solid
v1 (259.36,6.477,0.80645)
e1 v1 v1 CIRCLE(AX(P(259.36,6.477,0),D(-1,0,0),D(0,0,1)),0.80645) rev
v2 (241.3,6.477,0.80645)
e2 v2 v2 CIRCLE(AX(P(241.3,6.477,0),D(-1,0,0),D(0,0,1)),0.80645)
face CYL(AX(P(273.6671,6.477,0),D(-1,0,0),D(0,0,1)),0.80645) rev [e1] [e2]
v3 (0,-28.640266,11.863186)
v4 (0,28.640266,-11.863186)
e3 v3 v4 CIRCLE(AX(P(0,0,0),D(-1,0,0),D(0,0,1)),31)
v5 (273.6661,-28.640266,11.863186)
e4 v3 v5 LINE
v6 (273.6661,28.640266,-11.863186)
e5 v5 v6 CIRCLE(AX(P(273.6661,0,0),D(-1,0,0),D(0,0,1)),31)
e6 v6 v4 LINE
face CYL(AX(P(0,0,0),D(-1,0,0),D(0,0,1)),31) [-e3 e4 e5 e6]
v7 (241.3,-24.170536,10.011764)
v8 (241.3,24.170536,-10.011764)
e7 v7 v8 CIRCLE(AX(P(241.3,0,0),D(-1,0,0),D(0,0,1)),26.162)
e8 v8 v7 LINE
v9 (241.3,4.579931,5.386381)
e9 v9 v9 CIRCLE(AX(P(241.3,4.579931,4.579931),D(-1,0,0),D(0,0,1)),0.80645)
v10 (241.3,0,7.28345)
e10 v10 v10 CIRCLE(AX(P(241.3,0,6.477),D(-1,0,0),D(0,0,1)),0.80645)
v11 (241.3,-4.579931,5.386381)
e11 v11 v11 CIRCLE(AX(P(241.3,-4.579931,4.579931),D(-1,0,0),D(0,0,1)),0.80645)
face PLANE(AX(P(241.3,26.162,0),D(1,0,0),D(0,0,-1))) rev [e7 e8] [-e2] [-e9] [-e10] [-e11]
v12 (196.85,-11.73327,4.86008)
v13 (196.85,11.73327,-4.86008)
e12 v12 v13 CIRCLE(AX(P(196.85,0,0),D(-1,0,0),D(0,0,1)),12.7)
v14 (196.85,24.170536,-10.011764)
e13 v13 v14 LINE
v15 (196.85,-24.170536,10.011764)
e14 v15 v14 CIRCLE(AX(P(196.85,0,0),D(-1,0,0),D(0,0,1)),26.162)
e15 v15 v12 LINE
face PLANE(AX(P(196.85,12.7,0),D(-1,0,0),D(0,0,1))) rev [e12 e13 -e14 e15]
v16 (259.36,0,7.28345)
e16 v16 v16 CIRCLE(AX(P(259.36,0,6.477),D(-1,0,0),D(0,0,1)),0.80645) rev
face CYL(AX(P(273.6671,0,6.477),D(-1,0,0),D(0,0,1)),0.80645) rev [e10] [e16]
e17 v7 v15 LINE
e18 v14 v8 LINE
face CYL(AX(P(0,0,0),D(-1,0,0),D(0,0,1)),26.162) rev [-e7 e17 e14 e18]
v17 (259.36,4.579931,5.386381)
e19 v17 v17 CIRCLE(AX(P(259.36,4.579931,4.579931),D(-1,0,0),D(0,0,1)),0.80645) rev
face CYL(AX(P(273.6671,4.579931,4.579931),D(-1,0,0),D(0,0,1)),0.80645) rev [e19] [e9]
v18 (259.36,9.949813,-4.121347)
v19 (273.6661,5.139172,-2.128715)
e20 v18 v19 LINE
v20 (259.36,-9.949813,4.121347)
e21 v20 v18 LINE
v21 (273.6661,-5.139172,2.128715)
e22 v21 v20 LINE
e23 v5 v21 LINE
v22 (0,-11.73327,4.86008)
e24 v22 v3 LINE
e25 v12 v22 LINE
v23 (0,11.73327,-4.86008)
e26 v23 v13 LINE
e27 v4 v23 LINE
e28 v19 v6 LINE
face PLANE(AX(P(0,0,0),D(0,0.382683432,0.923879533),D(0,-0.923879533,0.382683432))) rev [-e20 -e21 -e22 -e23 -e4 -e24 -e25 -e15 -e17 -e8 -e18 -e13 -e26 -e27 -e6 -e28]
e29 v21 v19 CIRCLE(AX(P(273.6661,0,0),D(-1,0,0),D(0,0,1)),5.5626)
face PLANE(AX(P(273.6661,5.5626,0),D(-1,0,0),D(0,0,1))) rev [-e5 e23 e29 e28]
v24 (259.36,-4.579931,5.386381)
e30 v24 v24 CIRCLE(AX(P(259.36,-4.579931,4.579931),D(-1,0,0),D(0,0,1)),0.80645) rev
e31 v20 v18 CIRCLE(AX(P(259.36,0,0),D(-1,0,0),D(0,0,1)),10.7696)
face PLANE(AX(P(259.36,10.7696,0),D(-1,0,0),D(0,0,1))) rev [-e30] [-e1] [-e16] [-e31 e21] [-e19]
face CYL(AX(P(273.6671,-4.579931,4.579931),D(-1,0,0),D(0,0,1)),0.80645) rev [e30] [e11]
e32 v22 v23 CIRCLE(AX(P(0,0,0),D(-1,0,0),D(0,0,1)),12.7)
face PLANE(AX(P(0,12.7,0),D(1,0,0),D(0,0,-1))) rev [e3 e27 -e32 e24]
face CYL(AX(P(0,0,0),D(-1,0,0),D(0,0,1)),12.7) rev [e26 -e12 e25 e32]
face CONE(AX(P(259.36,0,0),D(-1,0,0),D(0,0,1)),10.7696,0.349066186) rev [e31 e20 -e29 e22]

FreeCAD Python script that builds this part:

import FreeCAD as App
import Part
import Sketcher
from FreeCAD import Vector
Q = App.Units.Quantity

doc = App.newDocument("Part")
params = doc.addObject("Spreadsheet::Sheet", "Params")
for row, (alias, value) in enumerate([
    ("sketch1_width", "7.75 in"),
    ("sketch1_width2", "1.75 in"),
    ("sketch1_height", "0.53 in"),
    ("sketch1_height2", "1.03 in"),
    ("sketch1_height3", "0.424 in"),
    ("revolution_angle", "360 deg"),
], start=1):
    params.set(f"A{row}", alias)
    params.set(f"B{row}", "=" + value)
    params.setAlias(f"B{row}", alias)

body = doc.addObject("PartDesign::Body", "Body")

# Sketch on XY plane
sketch1 = doc.addObject("Sketcher::SketchObject", "Sketch")
body.addObject(sketch1)
sketch1.AttachmentSupport = (doc.XY_Plane, [""])
sketch1.MapMode = "FlatFace"
sketch1.addGeometry(Part.LineSegment(Vector(0, 13, 0), Vector(197, 13, 0)), False)
sketch1.addGeometry(Part.LineSegment(Vector(197, 13, 0), Vector(197, 26, 0)), False)
sketch1.addGeometry(Part.LineSegment(Vector(197, 26, 0), Vector(241, 26, 0)), False)
sketch1.addGeometry(Part.LineSegment(Vector(241, 26, 0), Vector(241, 0, 0)), False)
sketch1.addGeometry(Part.LineSegment(Vector(241, 0, 0), Vector(259, 0, 0)), False)
sketch1.addGeometry(Part.LineSegment(Vector(259, 0, 0), Vector(259, 11, 0)), False)
sketch1.addGeometry(Part.LineSegment(Vector(259, 11, 0), Vector(274, 6, 0)), False)
sketch1.addGeometry(Part.LineSegment(Vector(274, 6, 0), Vector(274, 31, 0)), False)
sketch1.addGeometry(Part.LineSegment(Vector(274, 31, 0), Vector(0, 31, 0)), False)
sketch1.addGeometry(Part.LineSegment(Vector(0, 31, 0), Vector(0, 13, 0)), False)
sketch1.addConstraint(Sketcher.Constraint("Coincident", 0, 2, 1, 1))
sketch1.addConstraint(Sketcher.Constraint("Coincident", 1, 2, 2, 1))
sketch1.addConstraint(Sketcher.Constraint("Coincident", 2, 2, 3, 1))
sketch1.addConstraint(Sketcher.Constraint("Coincident", 3, 2, 4, 1))
sketch1.addConstraint(Sketcher.Constraint("Coincident", 4, 2, 5, 1))
sketch1.addConstraint(Sketcher.Constraint("Coincident", 5, 2, 6, 1))
sketch1.addConstraint(Sketcher.Constraint("Coincident", 6, 2, 7, 1))
sketch1.addConstraint(Sketcher.Constraint("Coincident", 7, 2, 8, 1))
sketch1.addConstraint(Sketcher.Constraint("Coincident", 8, 2, 9, 1))
sketch1.addConstraint(Sketcher.Constraint("Coincident", 9, 2, 0, 1))
sketch1.addConstraint(Sketcher.Constraint("Horizontal", 0))
sketch1.addConstraint(Sketcher.Constraint("Vertical", 1))
sketch1.addConstraint(Sketcher.Constraint("Horizontal", 2))
sketch1.addConstraint(Sketcher.Constraint("Vertical", 3))
sketch1.addConstraint(Sketcher.Constraint("Horizontal", 4))
sketch1.addConstraint(Sketcher.Constraint("Vertical", 5))
sketch1.addConstraint(Sketcher.Constraint("Vertical", 7))
sketch1.addConstraint(Sketcher.Constraint("Horizontal", 8))
sketch1.addConstraint(Sketcher.Constraint("Vertical", 9))
sketch1.addConstraint(Sketcher.Constraint("PointOnObject", 3, 2, -1))
sketch1.addConstraint(Sketcher.Constraint("PointOnObject", 8, 2, -2))
sketch1.addConstraint(Sketcher.Constraint("Angle", 6, Q("-20.000019 deg")))
sketch1.addConstraint(Sketcher.Constraint("DistanceX", 0, 1, 0, 2, Q("7.75 in")))
sketch1.addConstraint(Sketcher.Constraint("DistanceX", 2, 1, 2, 2, Q("1.75 in")))
sketch1.addConstraint(Sketcher.Constraint("DistanceY", 1, 1, 1, 2, Q("0.53 in")))
sketch1.addConstraint(Sketcher.Constraint("DistanceY", 3, 2, 3, 1, Q("1.03 in")))
sketch1.addConstraint(Sketcher.Constraint("DistanceY", 5, 1, 5, 2, Q("0.424 in")))
sketch1.addConstraint(Sketcher.Constraint("DistanceY", -1, 1, 6, 2, Q("0.219 in")))
sketch1.addConstraint(Sketcher.Constraint("DistanceX", 4, 1, 4, 2, 18.06))
sketch1.addConstraint(Sketcher.Constraint("DistanceY", 7, 1, 7, 2, 25.4374))
sketch1.setExpression("Constraints[22]", "Params.sketch1_width")
sketch1.setExpression("Constraints[23]", "Params.sketch1_width2")
sketch1.setExpression("Constraints[24]", "Params.sketch1_height")
sketch1.setExpression("Constraints[25]", "Params.sketch1_height2")
sketch1.setExpression("Constraints[26]", "Params.sketch1_height3")
revolution = doc.addObject("PartDesign::Revolution", "Revolution")
body.addObject(revolution)
revolution.Profile = sketch1
revolution.ReferenceAxis = (sketch1, ["H_Axis"])
revolution.setExpression("Angle", "Params.revolution_angle")

# Sketch on YZ plane
sketch2 = doc.addObject("Sketcher::SketchObject", "Sketch001")
body.addObject(sketch2)
sketch2.AttachmentSupport = (doc.YZ_Plane, [""])
sketch2.MapMode = "FlatFace"
sketch2.AttachmentOffset = App.Placement(Vector(0, 0, 9.5 * 25.4), App.Rotation())
sketch2.addGeometry(Part.Circle(Vector(6.5, 0, 0), Vector(0, 0, 1), 0.8), False)
sketch2.addConstraint(Sketcher.Constraint("PointOnObject", 0, 3, -1))
sketch2.addConstraint(Sketcher.Constraint("Diameter", 0, Q("0.0635 in")))
sketch2.addConstraint(Sketcher.Constraint("DistanceX", -1, 1, 0, 3, Q("0.255 in")))
pocket1 = doc.addObject("PartDesign::Pocket", "Pocket")
body.addObject(pocket1)
pocket1.Profile = sketch2
pocket1.Type = "UpToFirst"
pocket1.Reversed = True

# Sketch on YZ plane
sketch3 = doc.addObject("Sketcher::SketchObject", "Sketch002")
body.addObject(sketch3)
sketch3.AttachmentSupport = (doc.YZ_Plane, [""])
sketch3.MapMode = "FlatFace"
sketch3.AttachmentOffset = App.Placement(Vector(0, 0, 9.5 * 25.4), App.Rotation())
sketch3.addGeometry(Part.Circle(Vector(4.6, 4.6, 0), Vector(0, 0, 1), 0.8), False)
sketch3.addConstraint(Sketcher.Constraint("Diameter", 0, Q("0.0635 in")))
sketch3.addConstraint(Sketcher.Constraint("DistanceX", -1, 1, 0, 3, 4.579931))
sketch3.addConstraint(Sketcher.Constraint("DistanceY", -1, 1, 0, 3, 4.579931))
pocket2 = doc.addObject("PartDesign::Pocket", "Pocket001")
body.addObject(pocket2)
pocket2.Profile = sketch3
pocket2.Type = "UpToFirst"
pocket2.Reversed = True

# Sketch on YZ plane
sketch4 = doc.addObject("Sketcher::SketchObject", "Sketch003")
body.addObject(sketch4)
sketch4.AttachmentSupport = (doc.YZ_Plane, [""])
sketch4.MapMode = "FlatFace"
sketch4.AttachmentOffset = App.Placement(Vector(0, 0, 9.5 * 25.4), App.Rotation())
sketch4.addGeometry(Part.Circle(Vector(0, 6.5, 0), Vector(0, 0, 1), 0.8), False)
sketch4.addConstraint(Sketcher.Constraint("PointOnObject", 0, 3, -2))
sketch4.addConstraint(Sketcher.Constraint("Diameter", 0, Q("0.0635 in")))
sketch4.addConstraint(Sketcher.Constraint("DistanceY", -1, 1, 0, 3, Q("0.255 in")))
pocket3 = doc.addObject("PartDesign::Pocket", "Pocket002")
body.addObject(pocket3)
pocket3.Profile = sketch4
pocket3.Type = "UpToFirst"
pocket3.Reversed = True

# Sketch on YZ plane
sketch5 = doc.addObject("Sketcher::SketchObject", "Sketch004")
body.addObject(sketch5)
sketch5.AttachmentSupport = (doc.YZ_Plane, [""])
sketch5.MapMode = "FlatFace"
sketch5.AttachmentOffset = App.Placement(Vector(0, 0, 9.5 * 25.4), App.Rotation())
sketch5.addGeometry(Part.Circle(Vector(-4.6, 4.6, 0), Vector(0, 0, 1), 0.8), False)
sketch5.addConstraint(Sketcher.Constraint("Diameter", 0, Q("0.0635 in")))
sketch5.addConstraint(Sketcher.Constraint("DistanceX", 0, 3, -1, 1, 4.579931))
sketch5.addConstraint(Sketcher.Constraint("DistanceY", -1, 1, 0, 3, 4.579931))
pocket4 = doc.addObject("PartDesign::Pocket", "Pocket003")
body.addObject(pocket4)
pocket4.Profile = sketch5
pocket4.Type = "UpToFirst"
pocket4.Reversed = True

# Sketch on YZ plane
sketch6 = doc.addObject("Sketcher::SketchObject", "Sketch005")
body.addObject(sketch6)
sketch6.AttachmentSupport = (doc.YZ_Plane, [""])
sketch6.MapMode = "FlatFace"
sketch6.AttachmentOffset = App.Placement(Vector(0, 0, 9.5 * 25.4), App.Rotation())
sketch6.addGeometry(Part.Circle(Vector(-6.5, 0, 0), Vector(0, 0, 1), 0.8), False)
sketch6.addConstraint(Sketcher.Constraint("PointOnObject", 0, 3, -1))
sketch6.addConstraint(Sketcher.Constraint("Diameter", 0, Q("0.0635 in")))
sketch6.addConstraint(Sketcher.Constraint("DistanceX", 0, 3, -1, 1, Q("0.255 in")))
pocket5 = doc.addObject("PartDesign::Pocket", "Pocket004")
body.addObject(pocket5)
pocket5.Profile = sketch6
pocket5.Type = "UpToFirst"
pocket5.Reversed = True

# Sketch on YZ plane
sketch7 = doc.addObject("Sketcher::SketchObject", "Sketch006")
body.addObject(sketch7)
sketch7.AttachmentSupport = (doc.YZ_Plane, [""])
sketch7.MapMode = "FlatFace"
sketch7.AttachmentOffset = App.Placement(Vector(0, 0, 9.5 * 25.4), App.Rotation())
sketch7.addGeometry(Part.Circle(Vector(-4.6, -4.6, 0), Vector(0, 0, 1), 0.8), False)
sketch7.addConstraint(Sketcher.Constraint("Diameter", 0, Q("0.0635 in")))
sketch7.addConstraint(Sketcher.Constraint("DistanceX", 0, 3, -1, 1, 4.579931))
sketch7.addConstraint(Sketcher.Constraint("DistanceY", 0, 3, -1, 1, 4.579931))
pocket6 = doc.addObject("PartDesign::Pocket", "Pocket005")
body.addObject(pocket6)
pocket6.Profile = sketch7
pocket6.Type = "UpToFirst"
pocket6.Reversed = True

# Sketch on YZ plane
sketch8 = doc.addObject("Sketcher::SketchObject", "Sketch007")
body.addObject(sketch8)
sketch8.AttachmentSupport = (doc.YZ_Plane, [""])
sketch8.MapMode = "FlatFace"
sketch8.AttachmentOffset = App.Placement(Vector(0, 0, 9.5 * 25.4), App.Rotation())
sketch8.addGeometry(Part.Circle(Vector(0, -6.5, 0), Vector(0, 0, 1), 0.8), False)
sketch8.addConstraint(Sketcher.Constraint("PointOnObject", 0, 3, -2))
sketch8.addConstraint(Sketcher.Constraint("Diameter", 0, Q("0.0635 in")))
sketch8.addConstraint(Sketcher.Constraint("DistanceY", 0, 3, -1, 1, Q("0.255 in")))
pocket7 = doc.addObject("PartDesign::Pocket", "Pocket006")
body.addObject(pocket7)
pocket7.Profile = sketch8
pocket7.Type = "UpToFirst"
pocket7.Reversed = True

# Sketch on YZ plane
sketch9 = doc.addObject("Sketcher::SketchObject", "Sketch008")
body.addObject(sketch9)
sketch9.AttachmentSupport = (doc.YZ_Plane, [""])
sketch9.MapMode = "FlatFace"
sketch9.AttachmentOffset = App.Placement(Vector(0, 0, 9.5 * 25.4), App.Rotation())
sketch9.addGeometry(Part.Circle(Vector(4.6, -4.6, 0), Vector(0, 0, 1), 0.8), False)
sketch9.addConstraint(Sketcher.Constraint("Diameter", 0, Q("0.0635 in")))
sketch9.addConstraint(Sketcher.Constraint("DistanceX", -1, 1, 0, 3, 4.579931))
sketch9.addConstraint(Sketcher.Constraint("DistanceY", 0, 3, -1, 1, 4.579931))
pocket8 = doc.addObject("PartDesign::Pocket", "Pocket007")
body.addObject(pocket8)
pocket8.Profile = sketch9
pocket8.Type = "UpToFirst"
pocket8.Reversed = True

# Sketch on an angled plane
sketch10 = doc.addObject("Sketcher::SketchObject", "Sketch009")
body.addObject(sketch10)
sketch10.Placement = App.Placement(Vector(0, 0, 0), App.Rotation(Vector(0, -0.923879533, 0.382683432), Vector(1.000000001, 0, 0), Vector(0, 0.382683432, 0.923879533), "ZXY"))
sketch10.addGeometry(Part.LineSegment(Vector(-31, 274, 0), Vector(-31, 0, 0)), False)
sketch10.addGeometry(Part.LineSegment(Vector(-31, 0, 0), Vector(31, 0, 0)), False)
sketch10.addGeometry(Part.LineSegment(Vector(31, 0, 0), Vector(31, 274, 0)), False)
sketch10.addGeometry(Part.LineSegment(Vector(31, 274, 0), Vector(-31, 274, 0)), False)
sketch10.addConstraint(Sketcher.Constraint("Coincident", 0, 2, 1, 1))
sketch10.addConstraint(Sketcher.Constraint("Coincident", 1, 2, 2, 1))
sketch10.addConstraint(Sketcher.Constraint("Coincident", 2, 2, 3, 1))
sketch10.addConstraint(Sketcher.Constraint("Coincident", 3, 2, 0, 1))
sketch10.addConstraint(Sketcher.Constraint("Vertical", 0))
sketch10.addConstraint(Sketcher.Constraint("Horizontal", 1))
sketch10.addConstraint(Sketcher.Constraint("Vertical", 2))
sketch10.addConstraint(Sketcher.Constraint("Horizontal", 3))
sketch10.addConstraint(Sketcher.Constraint("Symmetric", 0, 2, 1, 2, -1, 1))
sketch10.addConstraint(Sketcher.Constraint("DistanceX", 1, 1, 1, 2, 62.0))
sketch10.addConstraint(Sketcher.Constraint("DistanceY", 0, 2, 0, 1, 273.6661))
pocket9 = doc.addObject("PartDesign::Pocket", "Pocket008")
body.addObject(pocket9)
pocket9.Profile = sketch10
pocket9.Type = "ThroughAll"

doc.recompute()
